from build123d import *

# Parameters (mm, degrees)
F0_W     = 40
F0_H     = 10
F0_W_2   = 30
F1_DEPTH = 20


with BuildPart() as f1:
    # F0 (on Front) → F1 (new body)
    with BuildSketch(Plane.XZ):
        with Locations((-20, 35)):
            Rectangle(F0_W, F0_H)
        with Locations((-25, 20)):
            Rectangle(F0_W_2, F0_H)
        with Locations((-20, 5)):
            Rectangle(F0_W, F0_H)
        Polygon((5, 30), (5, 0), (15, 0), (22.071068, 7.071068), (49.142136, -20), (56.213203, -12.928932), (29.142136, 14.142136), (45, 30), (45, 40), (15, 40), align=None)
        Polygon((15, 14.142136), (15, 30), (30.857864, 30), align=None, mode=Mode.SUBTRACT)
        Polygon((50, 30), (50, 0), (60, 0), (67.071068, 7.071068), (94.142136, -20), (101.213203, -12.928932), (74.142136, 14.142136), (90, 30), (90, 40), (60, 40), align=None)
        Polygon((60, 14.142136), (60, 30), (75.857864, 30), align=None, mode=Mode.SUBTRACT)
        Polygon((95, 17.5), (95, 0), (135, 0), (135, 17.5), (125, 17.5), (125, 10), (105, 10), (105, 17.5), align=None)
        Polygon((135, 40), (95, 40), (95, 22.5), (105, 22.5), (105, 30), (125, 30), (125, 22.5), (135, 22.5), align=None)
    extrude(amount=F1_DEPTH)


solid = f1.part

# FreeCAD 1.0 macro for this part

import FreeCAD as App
import Part
import Sketcher

V = App.Vector


def add_polygon(sketch, points):
    """Adds a closed chain of lines whose ends are joined by coincident constraints."""
    first, n = sketch.GeometryCount, len(points)
    for a, b in zip(points, points[1:] + points[:1]):
        sketch.addGeometry(Part.LineSegment(App.Vector(*a, 0), App.Vector(*b, 0)), False)
    for i in range(n):
        sketch.addConstraint(Sketcher.Constraint("Coincident", first + i, 2, first + (i + 1) % n, 1))

doc = App.newDocument("Part")
body = doc.addObject("PartDesign::Body", "Body")
body.AllowCompound = True

sketch1 = body.newObject("Sketcher::SketchObject", "Sketch")
sketch1.AttachmentSupport = (doc.getObject("XZ_Plane"), [""])
sketch1.MapMode = "FlatFace"
add_polygon(sketch1, [(-40, 40), (-40, 30), (0, 30), (0, 40)])
add_polygon(sketch1, [(-40, 25), (-40, 15), (-10, 15), (-10, 25)])
add_polygon(sketch1, [(-40, 10), (-40, 0), (0, 0), (0, 10)])
add_polygon(sketch1, [(5, 30), (5, 0), (15, 0), (22, 7), (49, -20), (56, -13), (29, 14), (45, 30), (45, 40), (15, 40)])
add_polygon(sketch1, [(31, 30), (15, 14), (15, 30)])
add_polygon(sketch1, [(50, 30), (50, 0), (60, 0), (67, 7), (94, -20), (101, -13), (74, 14), (90, 30), (90, 40), (60, 40)])
add_polygon(sketch1, [(76, 30), (60, 14), (60, 30)])
add_polygon(sketch1, [(95, 18), (95, 0), (135, 0), (135, 18), (125, 18), (125, 10), (105, 10), (105, 18)])
add_polygon(sketch1, [(135, 40), (95, 40), (95, 22), (105, 22), (105, 30), (125, 30), (125, 22), (135, 22)])
sketch1.addConstraint(Sketcher.Constraint("Vertical", 0))
sketch1.addConstraint(Sketcher.Constraint("Horizontal", 1))
sketch1.addConstraint(Sketcher.Constraint("Vertical", 2))
sketch1.addConstraint(Sketcher.Constraint("Horizontal", 3))
sketch1.addConstraint(Sketcher.Constraint("Vertical", 4))
sketch1.addConstraint(Sketcher.Constraint("Horizontal", 5))
sketch1.addConstraint(Sketcher.Constraint("Vertical", 6))
sketch1.addConstraint(Sketcher.Constraint("Horizontal", 7))
sketch1.addConstraint(Sketcher.Constraint("Vertical", 8))
sketch1.addConstraint(Sketcher.Constraint("Horizontal", 9))
sketch1.addConstraint(Sketcher.Constraint("Vertical", 10))
sketch1.addConstraint(Sketcher.Constraint("Horizontal", 11))
sketch1.addConstraint(Sketcher.Constraint("Vertical", 12))
sketch1.addConstraint(Sketcher.Constraint("Horizontal", 13))
sketch1.addConstraint(Sketcher.Constraint("Vertical", 19))
sketch1.addConstraint(Sketcher.Constraint("Horizontal", 20))
sketch1.addConstraint(Sketcher.Constraint("Vertical", 23))
sketch1.addConstraint(Sketcher.Constraint("Horizontal", 24))
sketch1.addConstraint(Sketcher.Constraint("Vertical", 25))
sketch1.addConstraint(Sketcher.Constraint("Horizontal", 26))
sketch1.addConstraint(Sketcher.Constraint("Vertical", 32))
sketch1.addConstraint(Sketcher.Constraint("Horizontal", 33))
sketch1.addConstraint(Sketcher.Constraint("Vertical", 36))
sketch1.addConstraint(Sketcher.Constraint("Horizontal", 37))
sketch1.addConstraint(Sketcher.Constraint("Vertical", 38))
sketch1.addConstraint(Sketcher.Constraint("Horizontal", 39))
sketch1.addConstraint(Sketcher.Constraint("Vertical", 40))
sketch1.addConstraint(Sketcher.Constraint("Horizontal", 41))
sketch1.addConstraint(Sketcher.Constraint("Vertical", 42))
sketch1.addConstraint(Sketcher.Constraint("Horizontal", 43))
sketch1.addConstraint(Sketcher.Constraint("Vertical", 44))
sketch1.addConstraint(Sketcher.Constraint("Horizontal", 45))
sketch1.addConstraint(Sketcher.Constraint("Horizontal", 46))
sketch1.addConstraint(Sketcher.Constraint("Vertical", 47))
sketch1.addConstraint(Sketcher.Constraint("Horizontal", 48))
sketch1.addConstraint(Sketcher.Constraint("Vertical", 49))
sketch1.addConstraint(Sketcher.Constraint("Horizontal", 50))
sketch1.addConstraint(Sketcher.Constraint("Vertical", 51))
sketch1.addConstraint(Sketcher.Constraint("Horizontal", 52))
sketch1.addConstraint(Sketcher.Constraint("Vertical", 53))
sketch1.addConstraint(Sketcher.Constraint("Coincident", 9, 2, -1, 1))
sketch1.addConstraint(Sketcher.Constraint("PointOnObject", 1, 2, -2))
sketch1.addConstraint(Sketcher.Constraint("PointOnObject", 12, 2, -1))
sketch1.addConstraint(Sketcher.Constraint("PointOnObject", 25, 2, -1))
sketch1.addConstraint(Sketcher.Constraint("PointOnObject", 38, 2, -1))
sketch1.addConstraint(Sketcher.Constraint("Perpendicular", 14, 15))
sketch1.addConstraint(Sketcher.Constraint("Perpendicular", 15, 16))
sketch1.addConstraint(Sketcher.Constraint("Perpendicular", 16, 17))
sketch1.addConstraint(Sketcher.Constraint("Perpendicular", 17, 18))
sketch1.addConstraint(Sketcher.Constraint("Parallel", 18, 21))
sketch1.addConstraint(Sketcher.Constraint("Parallel", 21, 22))
sketch1.addConstraint(Sketcher.Constraint("Parallel", 22, 27))
sketch1.addConstraint(Sketcher.Constraint("Perpendicular", 27, 28))
sketch1.addConstraint(Sketcher.Constraint("Perpendicular", 28, 29))
sketch1.addConstraint(Sketcher.Constraint("Perpendicular", 29, 30))
sketch1.addConstraint(Sketcher.Constraint("Perpendicular", 30, 31))
sketch1.addConstraint(Sketcher.Constraint("Parallel", 31, 34))
sketch1.addConstraint(Sketcher.Constraint("Parallel", 34, 35))
sketch1.addConstraint(Sketcher.Constraint("Horizontal", 1, 2, 18, 2))
sketch1.addConstraint(Sketcher.Constraint("Horizontal", 3, 2, 19, 2))
sketch1.addConstraint(Sketcher.Constraint("Horizontal", 18, 2, 21, 2))
sketch1.addConstraint(Sketcher.Constraint("Horizontal", 17, 2, 22, 2))
sketch1.addConstraint(Sketcher.Constraint("Horizontal", 21, 2, 23, 2))
sketch1.addConstraint(Sketcher.Constraint("Horizontal", 14, 2, 27, 2))
sketch1.addConstraint(Sketcher.Constraint("Horizontal", 15, 2, 28, 2))
sketch1.addConstraint(Sketcher.Constraint("Horizontal", 16, 2, 29, 2))
sketch1.addConstraint(Sketcher.Constraint("Horizontal", 22, 2, 30, 2))
sketch1.addConstraint(Sketcher.Constraint("Horizontal", 24, 2, 31, 2))
sketch1.addConstraint(Sketcher.Constraint("Horizontal", 20, 2, 32, 2))
sketch1.addConstraint(Sketcher.Constraint("Horizontal", 31, 2, 34, 2))
sketch1.addConstraint(Sketcher.Constraint("Horizontal", 30, 2, 35, 2))
sketch1.addConstraint(Sketcher.Constraint("Horizontal", 34, 2, 36, 2))
sketch1.addConstraint(Sketcher.Constraint("Horizontal", 11, 2, 42, 2))
sketch1.addConstraint(Sketcher.Constraint("Horizontal", 41, 2, 44, 2))
sketch1.addConstraint(Sketcher.Constraint("Horizontal", 33, 2, 46, 2))
sketch1.addConstraint(Sketcher.Constraint("Horizontal", 37, 2, 49, 2))
sketch1.addConstraint(Sketcher.Constraint("Horizontal", 48, 2, 51, 2))
sketch1.addConstraint(Sketcher.Constraint("Vertical", 3, 2, 4, 2))
sketch1.addConstraint(Sketcher.Constraint("Vertical", 7, 2, 8, 2))
sketch1.addConstraint(Sketcher.Constraint("Vertical", 13, 2, 20, 2))
sketch1.addConstraint(Sketcher.Constraint("Vertical", 20, 2, 22, 2))
sketch1.addConstraint(Sketcher.Constraint("Vertical", 26, 2, 33, 2))
sketch1.addConstraint(Sketcher.Constraint("Vertical", 33, 2, 35, 2))
sketch1.addConstraint(Sketcher.Constraint("Vertical", 45, 2, 46, 2))
sketch1.addConstraint(Sketcher.Constraint("Vertical", 44, 2, 48, 2))
sketch1.addConstraint(Sketcher.Constraint("Vertical", 42, 2, 50, 2))
sketch1.addConstraint(Sketcher.Constraint("Vertical", 40, 2, 52, 2))
sketch1.addConstraint(Sketcher.Constraint("Equal", 7, 20))
sketch1.addConstraint(Sketcher.Constraint("Equal", 11, 39))
sketch1.addConstraint(Sketcher.Constraint("Equal", 26, 41))
sketch1.addConstraint(Sketcher.Constraint("Equal", 41, 45))
sketch1.addConstraint(Sketcher.Constraint("Equal", 52, 0))
sketch1.addConstraint(Sketcher.Constraint("Equal", 2, 4))
sketch1.addConstraint(Sketcher.Constraint("Equal", 6, 8))
sketch1.addConstraint(Sketcher.Constraint("Equal", 33, 12))
sketch1.addConstraint(Sketcher.Constraint("Equal", 40, 47))
sketch1.addConstraint(Sketcher.Constraint("Equal", 14, 16))
sketch1.addConstraint(Sketcher.Constraint("DistanceX", 1, 1, 1, 2, 40.0))
sketch1.addConstraint(Sketcher.Constraint("DistanceX", 5, 1, 5, 2, 30.0))
sketch1.addConstraint(Sketcher.Constraint("DistanceX", 13, 1, 13, 2, 10.0))
sketch1.addConstraint(Sketcher.Constraint("Distance", 14, 10.0))
sketch1.addConstraint(Sketcher.Constraint("DistanceY", 38, 2, 38, 1, 17.5))
sketch1.addConstraint(Sketcher.Constraint("DistanceY", -1, 1, 4, 2, 15.0))
sketch1.addConstraint(Sketcher.Constraint("DistanceX", -1, 1, 12, 2, 5.0))
sketch1.addConstraint(Sketcher.Constraint("DistanceY", 15, 2, -1, 1, 20.0))
sketch1.addConstraint(Sketcher.Constraint("DistanceX", -1, 1, 25, 2, 50.0))
sketch1.addConstraint(Sketcher.Constraint("DistanceX", -1, 1, 38, 2, 95.0))
pad1 = body.newObject("PartDesign::Pad", "Pad")
pad1.Profile = sketch1
pad1.Length = 20

doc.recompute()
